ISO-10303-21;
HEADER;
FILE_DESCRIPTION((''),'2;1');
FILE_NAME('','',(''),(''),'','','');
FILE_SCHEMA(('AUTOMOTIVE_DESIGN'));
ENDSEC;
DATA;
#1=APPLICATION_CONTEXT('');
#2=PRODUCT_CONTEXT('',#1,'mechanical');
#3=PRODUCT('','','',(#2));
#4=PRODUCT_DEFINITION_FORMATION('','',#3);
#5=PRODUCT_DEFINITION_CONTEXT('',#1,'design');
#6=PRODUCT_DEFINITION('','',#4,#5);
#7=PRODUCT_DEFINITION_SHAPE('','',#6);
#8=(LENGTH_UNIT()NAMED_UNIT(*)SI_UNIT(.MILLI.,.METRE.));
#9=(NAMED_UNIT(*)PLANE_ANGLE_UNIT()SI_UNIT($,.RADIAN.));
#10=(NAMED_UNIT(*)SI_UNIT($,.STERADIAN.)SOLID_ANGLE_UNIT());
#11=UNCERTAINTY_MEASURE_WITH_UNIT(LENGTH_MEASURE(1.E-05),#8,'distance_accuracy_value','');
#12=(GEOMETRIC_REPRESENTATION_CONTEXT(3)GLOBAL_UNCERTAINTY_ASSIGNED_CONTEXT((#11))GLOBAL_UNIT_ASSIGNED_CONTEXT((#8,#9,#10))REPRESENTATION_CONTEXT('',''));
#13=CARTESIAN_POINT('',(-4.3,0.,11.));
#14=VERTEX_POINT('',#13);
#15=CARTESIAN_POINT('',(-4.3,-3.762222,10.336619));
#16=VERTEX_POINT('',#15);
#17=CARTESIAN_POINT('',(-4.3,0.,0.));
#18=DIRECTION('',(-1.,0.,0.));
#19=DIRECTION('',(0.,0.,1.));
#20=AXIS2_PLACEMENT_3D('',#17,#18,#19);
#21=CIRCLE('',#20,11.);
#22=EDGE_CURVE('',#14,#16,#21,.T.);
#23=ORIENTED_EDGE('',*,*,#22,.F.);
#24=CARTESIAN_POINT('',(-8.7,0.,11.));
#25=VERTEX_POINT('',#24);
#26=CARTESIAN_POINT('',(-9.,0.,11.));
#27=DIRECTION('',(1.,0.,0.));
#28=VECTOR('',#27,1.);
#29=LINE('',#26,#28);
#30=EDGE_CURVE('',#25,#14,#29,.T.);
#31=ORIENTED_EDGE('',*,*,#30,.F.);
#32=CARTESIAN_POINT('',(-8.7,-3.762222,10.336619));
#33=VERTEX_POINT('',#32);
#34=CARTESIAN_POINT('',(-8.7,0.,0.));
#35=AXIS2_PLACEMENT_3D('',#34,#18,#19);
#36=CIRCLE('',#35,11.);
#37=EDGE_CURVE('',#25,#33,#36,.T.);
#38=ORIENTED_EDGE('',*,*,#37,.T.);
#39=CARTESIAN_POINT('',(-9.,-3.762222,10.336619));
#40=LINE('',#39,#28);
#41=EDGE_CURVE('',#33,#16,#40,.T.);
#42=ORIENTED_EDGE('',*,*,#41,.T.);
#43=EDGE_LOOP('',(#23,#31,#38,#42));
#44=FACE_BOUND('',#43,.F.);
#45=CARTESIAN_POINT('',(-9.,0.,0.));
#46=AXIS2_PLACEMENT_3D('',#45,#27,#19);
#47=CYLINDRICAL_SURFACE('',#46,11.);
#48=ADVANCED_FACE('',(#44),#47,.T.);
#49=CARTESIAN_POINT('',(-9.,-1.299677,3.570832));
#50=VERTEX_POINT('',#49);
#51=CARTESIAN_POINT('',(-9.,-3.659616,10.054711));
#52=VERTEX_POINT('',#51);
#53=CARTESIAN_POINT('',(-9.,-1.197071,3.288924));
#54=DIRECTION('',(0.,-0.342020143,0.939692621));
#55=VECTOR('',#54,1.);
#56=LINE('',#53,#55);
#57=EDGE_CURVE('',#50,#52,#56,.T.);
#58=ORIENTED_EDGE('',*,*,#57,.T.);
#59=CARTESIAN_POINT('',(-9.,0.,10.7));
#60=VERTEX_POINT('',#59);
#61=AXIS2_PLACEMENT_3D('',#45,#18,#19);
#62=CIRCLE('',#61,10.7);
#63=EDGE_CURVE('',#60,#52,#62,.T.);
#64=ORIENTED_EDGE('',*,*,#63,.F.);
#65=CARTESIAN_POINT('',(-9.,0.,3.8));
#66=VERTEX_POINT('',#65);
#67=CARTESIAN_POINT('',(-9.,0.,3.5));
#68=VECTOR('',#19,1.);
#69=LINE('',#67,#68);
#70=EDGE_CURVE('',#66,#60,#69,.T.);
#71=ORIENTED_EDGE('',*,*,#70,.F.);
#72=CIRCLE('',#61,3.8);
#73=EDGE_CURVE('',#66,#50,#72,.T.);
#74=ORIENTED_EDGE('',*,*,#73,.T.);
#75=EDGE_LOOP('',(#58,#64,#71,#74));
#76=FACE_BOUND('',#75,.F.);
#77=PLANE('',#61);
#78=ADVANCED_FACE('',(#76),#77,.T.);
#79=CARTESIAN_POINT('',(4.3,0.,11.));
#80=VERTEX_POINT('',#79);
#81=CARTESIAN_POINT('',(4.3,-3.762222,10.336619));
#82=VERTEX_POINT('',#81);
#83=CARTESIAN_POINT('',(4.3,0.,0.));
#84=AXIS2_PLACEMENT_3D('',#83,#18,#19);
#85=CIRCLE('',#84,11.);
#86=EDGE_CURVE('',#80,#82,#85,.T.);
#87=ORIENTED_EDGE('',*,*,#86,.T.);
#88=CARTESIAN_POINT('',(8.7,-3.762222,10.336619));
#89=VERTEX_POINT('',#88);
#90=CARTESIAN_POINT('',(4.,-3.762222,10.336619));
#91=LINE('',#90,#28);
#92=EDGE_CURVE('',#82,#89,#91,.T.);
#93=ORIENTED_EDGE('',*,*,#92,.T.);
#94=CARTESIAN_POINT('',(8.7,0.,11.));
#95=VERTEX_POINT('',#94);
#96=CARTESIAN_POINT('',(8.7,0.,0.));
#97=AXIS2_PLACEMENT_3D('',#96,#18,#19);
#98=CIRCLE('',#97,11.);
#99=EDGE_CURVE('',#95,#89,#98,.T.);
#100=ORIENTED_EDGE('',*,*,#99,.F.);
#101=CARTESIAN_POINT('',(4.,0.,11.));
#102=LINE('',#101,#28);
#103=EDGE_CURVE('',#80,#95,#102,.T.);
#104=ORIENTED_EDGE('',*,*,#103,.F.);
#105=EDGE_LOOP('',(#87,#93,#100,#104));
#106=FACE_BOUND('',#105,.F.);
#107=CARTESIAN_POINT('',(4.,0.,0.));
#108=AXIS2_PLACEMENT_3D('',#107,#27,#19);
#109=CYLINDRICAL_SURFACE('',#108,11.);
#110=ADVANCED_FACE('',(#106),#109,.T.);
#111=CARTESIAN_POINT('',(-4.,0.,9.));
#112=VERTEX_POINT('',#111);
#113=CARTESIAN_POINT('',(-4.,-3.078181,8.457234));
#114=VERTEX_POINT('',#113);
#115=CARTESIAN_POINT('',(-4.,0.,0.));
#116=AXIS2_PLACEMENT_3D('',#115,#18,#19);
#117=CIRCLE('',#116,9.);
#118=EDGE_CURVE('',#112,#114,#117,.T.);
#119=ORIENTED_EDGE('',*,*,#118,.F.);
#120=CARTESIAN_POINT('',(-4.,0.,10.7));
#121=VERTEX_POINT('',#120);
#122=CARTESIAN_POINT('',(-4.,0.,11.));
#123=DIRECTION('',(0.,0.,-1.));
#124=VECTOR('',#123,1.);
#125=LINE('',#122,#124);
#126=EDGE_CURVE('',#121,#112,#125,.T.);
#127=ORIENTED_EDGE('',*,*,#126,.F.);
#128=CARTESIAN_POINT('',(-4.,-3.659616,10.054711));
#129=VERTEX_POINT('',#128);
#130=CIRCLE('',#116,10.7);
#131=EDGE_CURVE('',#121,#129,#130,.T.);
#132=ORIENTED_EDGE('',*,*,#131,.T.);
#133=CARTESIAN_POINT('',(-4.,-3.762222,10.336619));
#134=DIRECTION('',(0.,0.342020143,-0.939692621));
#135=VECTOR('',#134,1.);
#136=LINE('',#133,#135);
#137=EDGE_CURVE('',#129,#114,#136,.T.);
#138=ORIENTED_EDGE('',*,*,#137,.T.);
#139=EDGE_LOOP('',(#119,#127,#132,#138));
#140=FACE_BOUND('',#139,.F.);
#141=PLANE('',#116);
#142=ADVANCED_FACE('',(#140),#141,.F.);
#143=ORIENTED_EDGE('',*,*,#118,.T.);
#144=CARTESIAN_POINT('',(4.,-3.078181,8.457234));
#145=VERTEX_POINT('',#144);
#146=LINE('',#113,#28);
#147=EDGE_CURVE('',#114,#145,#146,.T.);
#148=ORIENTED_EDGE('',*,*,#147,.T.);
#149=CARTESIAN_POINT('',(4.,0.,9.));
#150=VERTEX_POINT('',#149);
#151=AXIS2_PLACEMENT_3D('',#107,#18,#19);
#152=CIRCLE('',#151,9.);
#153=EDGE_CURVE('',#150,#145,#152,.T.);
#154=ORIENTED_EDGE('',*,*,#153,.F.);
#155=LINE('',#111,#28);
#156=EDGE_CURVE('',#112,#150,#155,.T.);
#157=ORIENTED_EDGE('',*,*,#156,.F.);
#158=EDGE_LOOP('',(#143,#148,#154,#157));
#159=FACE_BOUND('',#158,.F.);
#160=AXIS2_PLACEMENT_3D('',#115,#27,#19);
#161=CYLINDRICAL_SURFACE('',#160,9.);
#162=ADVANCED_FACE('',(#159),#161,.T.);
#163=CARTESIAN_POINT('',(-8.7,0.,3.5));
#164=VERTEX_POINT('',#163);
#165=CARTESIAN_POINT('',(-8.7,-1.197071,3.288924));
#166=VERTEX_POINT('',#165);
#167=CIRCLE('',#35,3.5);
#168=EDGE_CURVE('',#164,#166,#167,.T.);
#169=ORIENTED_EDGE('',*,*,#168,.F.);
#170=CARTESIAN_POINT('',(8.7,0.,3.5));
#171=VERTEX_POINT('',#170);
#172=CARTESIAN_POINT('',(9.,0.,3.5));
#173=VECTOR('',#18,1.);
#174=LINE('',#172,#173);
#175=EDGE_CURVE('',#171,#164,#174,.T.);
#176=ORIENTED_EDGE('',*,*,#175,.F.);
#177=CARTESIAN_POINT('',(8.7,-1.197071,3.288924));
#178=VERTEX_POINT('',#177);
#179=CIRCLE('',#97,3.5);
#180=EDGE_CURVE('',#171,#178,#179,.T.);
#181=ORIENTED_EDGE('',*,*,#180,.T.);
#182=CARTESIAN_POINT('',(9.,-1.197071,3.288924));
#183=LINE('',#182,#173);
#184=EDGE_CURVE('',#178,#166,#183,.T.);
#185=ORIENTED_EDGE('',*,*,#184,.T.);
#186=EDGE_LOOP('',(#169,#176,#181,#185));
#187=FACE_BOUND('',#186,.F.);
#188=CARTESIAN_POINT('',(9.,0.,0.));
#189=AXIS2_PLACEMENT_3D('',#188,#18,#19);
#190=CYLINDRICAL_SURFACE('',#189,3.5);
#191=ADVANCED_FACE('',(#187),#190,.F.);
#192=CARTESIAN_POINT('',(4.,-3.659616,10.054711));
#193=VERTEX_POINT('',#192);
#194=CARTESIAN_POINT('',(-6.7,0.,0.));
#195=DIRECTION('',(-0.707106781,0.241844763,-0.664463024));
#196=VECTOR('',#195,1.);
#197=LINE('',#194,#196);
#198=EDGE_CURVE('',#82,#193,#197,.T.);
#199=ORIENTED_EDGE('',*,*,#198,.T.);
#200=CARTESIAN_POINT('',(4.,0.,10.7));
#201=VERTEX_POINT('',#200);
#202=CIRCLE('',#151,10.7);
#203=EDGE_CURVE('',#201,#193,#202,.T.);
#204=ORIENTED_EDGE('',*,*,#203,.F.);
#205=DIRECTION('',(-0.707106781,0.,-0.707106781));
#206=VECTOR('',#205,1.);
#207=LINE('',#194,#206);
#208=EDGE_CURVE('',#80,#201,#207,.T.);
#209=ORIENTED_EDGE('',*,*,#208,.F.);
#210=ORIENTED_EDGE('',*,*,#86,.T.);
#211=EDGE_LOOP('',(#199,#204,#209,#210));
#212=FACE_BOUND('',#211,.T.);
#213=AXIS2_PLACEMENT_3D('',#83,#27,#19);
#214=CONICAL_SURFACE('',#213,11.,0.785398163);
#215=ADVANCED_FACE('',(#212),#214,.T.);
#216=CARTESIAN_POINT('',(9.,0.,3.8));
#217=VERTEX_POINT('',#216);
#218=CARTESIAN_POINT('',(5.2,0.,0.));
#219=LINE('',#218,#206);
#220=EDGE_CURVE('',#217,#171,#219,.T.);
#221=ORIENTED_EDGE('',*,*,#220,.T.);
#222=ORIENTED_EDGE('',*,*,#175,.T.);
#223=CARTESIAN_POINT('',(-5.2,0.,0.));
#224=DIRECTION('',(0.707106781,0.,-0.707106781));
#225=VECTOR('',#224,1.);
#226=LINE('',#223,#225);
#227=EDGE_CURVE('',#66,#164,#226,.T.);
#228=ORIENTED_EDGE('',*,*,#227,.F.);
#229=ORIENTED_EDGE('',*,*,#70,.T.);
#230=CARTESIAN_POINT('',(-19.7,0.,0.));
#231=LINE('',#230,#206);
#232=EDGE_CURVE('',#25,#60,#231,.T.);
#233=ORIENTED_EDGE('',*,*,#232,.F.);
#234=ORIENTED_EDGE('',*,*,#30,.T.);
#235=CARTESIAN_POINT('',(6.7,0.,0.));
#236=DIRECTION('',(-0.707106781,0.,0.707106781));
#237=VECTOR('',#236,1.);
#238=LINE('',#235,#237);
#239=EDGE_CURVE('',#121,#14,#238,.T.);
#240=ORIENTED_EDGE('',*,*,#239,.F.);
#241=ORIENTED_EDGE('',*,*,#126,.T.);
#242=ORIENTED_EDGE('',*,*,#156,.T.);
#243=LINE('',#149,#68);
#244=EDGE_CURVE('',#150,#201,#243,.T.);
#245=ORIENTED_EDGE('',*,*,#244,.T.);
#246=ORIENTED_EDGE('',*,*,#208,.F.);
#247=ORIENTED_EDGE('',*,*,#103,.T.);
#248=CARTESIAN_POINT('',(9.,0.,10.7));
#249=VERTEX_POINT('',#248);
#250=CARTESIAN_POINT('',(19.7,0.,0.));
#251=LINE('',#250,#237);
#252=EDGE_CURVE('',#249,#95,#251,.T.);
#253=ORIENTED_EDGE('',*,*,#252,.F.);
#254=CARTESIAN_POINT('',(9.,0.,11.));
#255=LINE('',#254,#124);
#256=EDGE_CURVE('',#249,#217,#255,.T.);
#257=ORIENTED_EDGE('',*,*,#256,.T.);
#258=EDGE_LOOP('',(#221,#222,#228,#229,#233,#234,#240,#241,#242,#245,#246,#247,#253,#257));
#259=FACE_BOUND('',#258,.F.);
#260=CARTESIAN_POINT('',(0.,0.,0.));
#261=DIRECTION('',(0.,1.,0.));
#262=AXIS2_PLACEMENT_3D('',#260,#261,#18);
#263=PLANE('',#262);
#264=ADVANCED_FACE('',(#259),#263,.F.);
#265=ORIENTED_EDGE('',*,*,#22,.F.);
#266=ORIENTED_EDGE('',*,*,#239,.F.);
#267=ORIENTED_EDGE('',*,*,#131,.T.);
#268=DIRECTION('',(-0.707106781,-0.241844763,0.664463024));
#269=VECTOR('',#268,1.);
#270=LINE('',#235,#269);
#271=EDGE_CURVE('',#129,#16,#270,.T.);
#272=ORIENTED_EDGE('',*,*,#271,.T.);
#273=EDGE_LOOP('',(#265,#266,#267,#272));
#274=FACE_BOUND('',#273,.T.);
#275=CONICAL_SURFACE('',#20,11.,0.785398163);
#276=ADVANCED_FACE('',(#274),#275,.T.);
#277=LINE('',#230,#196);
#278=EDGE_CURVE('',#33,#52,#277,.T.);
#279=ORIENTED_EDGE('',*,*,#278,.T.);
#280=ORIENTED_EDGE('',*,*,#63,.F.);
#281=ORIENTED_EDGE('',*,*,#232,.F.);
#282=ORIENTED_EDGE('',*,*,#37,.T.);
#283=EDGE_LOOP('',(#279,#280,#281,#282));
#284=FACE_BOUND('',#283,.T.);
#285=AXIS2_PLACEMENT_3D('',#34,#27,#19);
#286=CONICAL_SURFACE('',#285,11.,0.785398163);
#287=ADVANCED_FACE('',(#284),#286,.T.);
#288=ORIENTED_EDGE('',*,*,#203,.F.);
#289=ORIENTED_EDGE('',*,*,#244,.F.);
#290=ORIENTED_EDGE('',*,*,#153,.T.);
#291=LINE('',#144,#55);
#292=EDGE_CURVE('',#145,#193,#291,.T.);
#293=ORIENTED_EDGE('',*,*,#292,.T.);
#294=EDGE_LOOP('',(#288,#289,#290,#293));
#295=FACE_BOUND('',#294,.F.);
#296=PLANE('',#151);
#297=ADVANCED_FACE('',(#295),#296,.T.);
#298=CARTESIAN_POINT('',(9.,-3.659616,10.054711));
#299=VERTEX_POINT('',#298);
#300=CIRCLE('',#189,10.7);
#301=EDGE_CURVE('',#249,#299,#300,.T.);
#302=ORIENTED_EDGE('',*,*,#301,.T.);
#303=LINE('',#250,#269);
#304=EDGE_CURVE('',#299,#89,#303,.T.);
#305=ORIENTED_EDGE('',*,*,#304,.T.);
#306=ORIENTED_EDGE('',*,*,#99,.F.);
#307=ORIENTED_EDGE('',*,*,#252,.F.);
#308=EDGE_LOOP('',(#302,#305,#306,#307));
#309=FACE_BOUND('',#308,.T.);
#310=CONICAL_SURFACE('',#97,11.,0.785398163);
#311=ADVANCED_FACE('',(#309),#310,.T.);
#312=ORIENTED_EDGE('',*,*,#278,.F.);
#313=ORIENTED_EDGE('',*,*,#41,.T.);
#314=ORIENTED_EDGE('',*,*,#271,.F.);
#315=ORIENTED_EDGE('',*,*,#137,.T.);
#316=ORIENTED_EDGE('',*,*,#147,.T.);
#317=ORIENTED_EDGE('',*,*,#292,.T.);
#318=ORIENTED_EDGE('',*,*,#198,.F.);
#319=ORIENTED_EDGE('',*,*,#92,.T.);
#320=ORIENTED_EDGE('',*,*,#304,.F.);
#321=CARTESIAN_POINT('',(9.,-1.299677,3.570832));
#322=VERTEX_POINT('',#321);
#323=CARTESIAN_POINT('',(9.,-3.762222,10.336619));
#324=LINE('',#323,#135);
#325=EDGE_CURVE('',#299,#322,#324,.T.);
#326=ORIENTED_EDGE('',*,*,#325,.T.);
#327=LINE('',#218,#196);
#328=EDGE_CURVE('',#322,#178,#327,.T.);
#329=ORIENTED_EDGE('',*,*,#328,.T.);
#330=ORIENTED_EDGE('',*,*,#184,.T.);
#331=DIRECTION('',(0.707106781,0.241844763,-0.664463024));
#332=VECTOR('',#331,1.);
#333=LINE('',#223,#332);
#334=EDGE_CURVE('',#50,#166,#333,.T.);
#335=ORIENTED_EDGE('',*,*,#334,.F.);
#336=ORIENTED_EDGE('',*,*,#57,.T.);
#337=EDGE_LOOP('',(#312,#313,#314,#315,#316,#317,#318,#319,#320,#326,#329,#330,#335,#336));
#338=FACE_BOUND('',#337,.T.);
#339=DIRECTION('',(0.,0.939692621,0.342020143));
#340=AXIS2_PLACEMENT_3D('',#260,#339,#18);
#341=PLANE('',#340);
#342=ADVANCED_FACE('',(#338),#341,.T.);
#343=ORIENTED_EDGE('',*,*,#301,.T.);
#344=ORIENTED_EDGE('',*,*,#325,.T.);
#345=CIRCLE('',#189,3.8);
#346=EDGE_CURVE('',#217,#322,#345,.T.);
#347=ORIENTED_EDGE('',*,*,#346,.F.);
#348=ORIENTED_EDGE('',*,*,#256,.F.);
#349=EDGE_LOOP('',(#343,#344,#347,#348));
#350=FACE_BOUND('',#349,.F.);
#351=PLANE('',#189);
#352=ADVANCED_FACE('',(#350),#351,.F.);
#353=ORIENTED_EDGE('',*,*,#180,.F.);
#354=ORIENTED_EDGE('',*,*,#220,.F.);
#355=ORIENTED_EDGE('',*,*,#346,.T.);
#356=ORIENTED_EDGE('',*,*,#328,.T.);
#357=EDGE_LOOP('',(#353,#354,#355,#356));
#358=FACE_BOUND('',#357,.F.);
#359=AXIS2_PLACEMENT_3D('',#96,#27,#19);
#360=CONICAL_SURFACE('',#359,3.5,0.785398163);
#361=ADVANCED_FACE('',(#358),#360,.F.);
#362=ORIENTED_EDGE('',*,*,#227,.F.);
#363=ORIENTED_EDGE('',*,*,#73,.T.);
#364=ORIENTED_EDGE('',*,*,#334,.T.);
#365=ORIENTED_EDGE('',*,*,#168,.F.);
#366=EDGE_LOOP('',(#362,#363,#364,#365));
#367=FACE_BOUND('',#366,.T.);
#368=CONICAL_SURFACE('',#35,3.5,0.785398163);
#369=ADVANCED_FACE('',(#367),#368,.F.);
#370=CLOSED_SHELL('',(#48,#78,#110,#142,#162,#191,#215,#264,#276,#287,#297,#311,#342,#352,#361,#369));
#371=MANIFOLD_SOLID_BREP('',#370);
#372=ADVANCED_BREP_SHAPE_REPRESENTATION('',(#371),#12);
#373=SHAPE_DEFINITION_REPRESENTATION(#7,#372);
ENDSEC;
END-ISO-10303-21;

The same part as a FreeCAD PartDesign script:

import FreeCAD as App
import Part
import Sketcher
from FreeCAD import Vector


def edges_at(feature, points):
    """Names of the edges that pass closest to the given points."""
    edges = feature.Shape.Edges
    near = lambda p: min(range(len(edges)), key=lambda i: edges[i].distToShape(Part.Vertex(*p))[0])
    return sorted({f"Edge{near(p) + 1}" for p in points})

doc = App.newDocument("Part")
body = doc.addObject("PartDesign::Body", "Body")

sketch1 = doc.addObject("Sketcher::SketchObject", "Sketch")
body.addObject(sketch1)
sketch1.AttachmentSupport = (doc.XZ_Plane, [""])
sketch1.MapMode = "FlatFace"
sketch1.addGeometry([
    Part.LineSegment(Vector(9, 11, 0), Vector(9, 3.5, 0)),
    Part.LineSegment(Vector(9, 3.5, 0), Vector(-9, 3.5, 0)),
    Part.LineSegment(Vector(-9, 3.5, 0), Vector(-9, 11, 0)),
    Part.LineSegment(Vector(-9, 11, 0), Vector(-4, 11, 0)),
    Part.LineSegment(Vector(-4, 11, 0), Vector(-4, 9, 0)),
    Part.LineSegment(Vector(-4, 9, 0), Vector(4, 9, 0)),
    Part.LineSegment(Vector(4, 9, 0), Vector(4, 11, 0)),
    Part.LineSegment(Vector(4, 11, 0), Vector(9, 11, 0)),
], False)
sketch1.addConstraint([
    Sketcher.Constraint("Coincident", 0, 2, 1, 1),
    Sketcher.Constraint("Coincident", 1, 2, 2, 1),
    Sketcher.Constraint("Coincident", 2, 2, 3, 1),
    Sketcher.Constraint("Coincident", 3, 2, 4, 1),
    Sketcher.Constraint("Coincident", 4, 2, 5, 1),
    Sketcher.Constraint("Coincident", 5, 2, 6, 1),
    Sketcher.Constraint("Coincident", 6, 2, 7, 1),
    Sketcher.Constraint("Coincident", 7, 2, 0, 1),
    Sketcher.Constraint("Vertical", 0),
    Sketcher.Constraint("Horizontal", 1),
    Sketcher.Constraint("Vertical", 2),
    Sketcher.Constraint("Horizontal", 3),
    Sketcher.Constraint("Vertical", 4),
    Sketcher.Constraint("Horizontal", 5),
    Sketcher.Constraint("Vertical", 6),
    Sketcher.Constraint("Horizontal", 7),
    Sketcher.Constraint("Symmetric", 3, 2, 6, 2, -2),
    Sketcher.Constraint("Equal", 3, 7),
    Sketcher.Constraint("DistanceX", 1, 2, 1, 1, 18.0),
    Sketcher.Constraint("DistanceX", 5, 1, 5, 2, 8.0),
    Sketcher.Constraint("DistanceY", 4, 2, 4, 1, 2.0),
    Sketcher.Constraint("DistanceY", 0, 2, 0, 1, 7.5),
    Sketcher.Constraint("DistanceY", -1, 1, 2, 2, 11.0),
])
revolution = doc.addObject("PartDesign::Revolution", "Revolution")
body.addObject(revolution)
revolution.Profile = sketch1
revolution.ReferenceAxis = (sketch1, ["H_Axis"])
revolution.Angle = 340
revolution.Reversed = True
doc.recompute()

chamfer = doc.addObject("PartDesign::Chamfer", "Chamfer")
body.addObject(chamfer)
chamfer.Base = (revolution, edges_at(revolution, [
    (-4, 1.91, -10.833),
    (4, 1.91, -10.833),
    (9, 1.91, -10.833),
    (-9, 1.91, -10.833),
    (9, 0.608, -3.447),
    (-9, 0.608, -3.447),
]))
chamfer.Size = 0.3

doc.recompute()
